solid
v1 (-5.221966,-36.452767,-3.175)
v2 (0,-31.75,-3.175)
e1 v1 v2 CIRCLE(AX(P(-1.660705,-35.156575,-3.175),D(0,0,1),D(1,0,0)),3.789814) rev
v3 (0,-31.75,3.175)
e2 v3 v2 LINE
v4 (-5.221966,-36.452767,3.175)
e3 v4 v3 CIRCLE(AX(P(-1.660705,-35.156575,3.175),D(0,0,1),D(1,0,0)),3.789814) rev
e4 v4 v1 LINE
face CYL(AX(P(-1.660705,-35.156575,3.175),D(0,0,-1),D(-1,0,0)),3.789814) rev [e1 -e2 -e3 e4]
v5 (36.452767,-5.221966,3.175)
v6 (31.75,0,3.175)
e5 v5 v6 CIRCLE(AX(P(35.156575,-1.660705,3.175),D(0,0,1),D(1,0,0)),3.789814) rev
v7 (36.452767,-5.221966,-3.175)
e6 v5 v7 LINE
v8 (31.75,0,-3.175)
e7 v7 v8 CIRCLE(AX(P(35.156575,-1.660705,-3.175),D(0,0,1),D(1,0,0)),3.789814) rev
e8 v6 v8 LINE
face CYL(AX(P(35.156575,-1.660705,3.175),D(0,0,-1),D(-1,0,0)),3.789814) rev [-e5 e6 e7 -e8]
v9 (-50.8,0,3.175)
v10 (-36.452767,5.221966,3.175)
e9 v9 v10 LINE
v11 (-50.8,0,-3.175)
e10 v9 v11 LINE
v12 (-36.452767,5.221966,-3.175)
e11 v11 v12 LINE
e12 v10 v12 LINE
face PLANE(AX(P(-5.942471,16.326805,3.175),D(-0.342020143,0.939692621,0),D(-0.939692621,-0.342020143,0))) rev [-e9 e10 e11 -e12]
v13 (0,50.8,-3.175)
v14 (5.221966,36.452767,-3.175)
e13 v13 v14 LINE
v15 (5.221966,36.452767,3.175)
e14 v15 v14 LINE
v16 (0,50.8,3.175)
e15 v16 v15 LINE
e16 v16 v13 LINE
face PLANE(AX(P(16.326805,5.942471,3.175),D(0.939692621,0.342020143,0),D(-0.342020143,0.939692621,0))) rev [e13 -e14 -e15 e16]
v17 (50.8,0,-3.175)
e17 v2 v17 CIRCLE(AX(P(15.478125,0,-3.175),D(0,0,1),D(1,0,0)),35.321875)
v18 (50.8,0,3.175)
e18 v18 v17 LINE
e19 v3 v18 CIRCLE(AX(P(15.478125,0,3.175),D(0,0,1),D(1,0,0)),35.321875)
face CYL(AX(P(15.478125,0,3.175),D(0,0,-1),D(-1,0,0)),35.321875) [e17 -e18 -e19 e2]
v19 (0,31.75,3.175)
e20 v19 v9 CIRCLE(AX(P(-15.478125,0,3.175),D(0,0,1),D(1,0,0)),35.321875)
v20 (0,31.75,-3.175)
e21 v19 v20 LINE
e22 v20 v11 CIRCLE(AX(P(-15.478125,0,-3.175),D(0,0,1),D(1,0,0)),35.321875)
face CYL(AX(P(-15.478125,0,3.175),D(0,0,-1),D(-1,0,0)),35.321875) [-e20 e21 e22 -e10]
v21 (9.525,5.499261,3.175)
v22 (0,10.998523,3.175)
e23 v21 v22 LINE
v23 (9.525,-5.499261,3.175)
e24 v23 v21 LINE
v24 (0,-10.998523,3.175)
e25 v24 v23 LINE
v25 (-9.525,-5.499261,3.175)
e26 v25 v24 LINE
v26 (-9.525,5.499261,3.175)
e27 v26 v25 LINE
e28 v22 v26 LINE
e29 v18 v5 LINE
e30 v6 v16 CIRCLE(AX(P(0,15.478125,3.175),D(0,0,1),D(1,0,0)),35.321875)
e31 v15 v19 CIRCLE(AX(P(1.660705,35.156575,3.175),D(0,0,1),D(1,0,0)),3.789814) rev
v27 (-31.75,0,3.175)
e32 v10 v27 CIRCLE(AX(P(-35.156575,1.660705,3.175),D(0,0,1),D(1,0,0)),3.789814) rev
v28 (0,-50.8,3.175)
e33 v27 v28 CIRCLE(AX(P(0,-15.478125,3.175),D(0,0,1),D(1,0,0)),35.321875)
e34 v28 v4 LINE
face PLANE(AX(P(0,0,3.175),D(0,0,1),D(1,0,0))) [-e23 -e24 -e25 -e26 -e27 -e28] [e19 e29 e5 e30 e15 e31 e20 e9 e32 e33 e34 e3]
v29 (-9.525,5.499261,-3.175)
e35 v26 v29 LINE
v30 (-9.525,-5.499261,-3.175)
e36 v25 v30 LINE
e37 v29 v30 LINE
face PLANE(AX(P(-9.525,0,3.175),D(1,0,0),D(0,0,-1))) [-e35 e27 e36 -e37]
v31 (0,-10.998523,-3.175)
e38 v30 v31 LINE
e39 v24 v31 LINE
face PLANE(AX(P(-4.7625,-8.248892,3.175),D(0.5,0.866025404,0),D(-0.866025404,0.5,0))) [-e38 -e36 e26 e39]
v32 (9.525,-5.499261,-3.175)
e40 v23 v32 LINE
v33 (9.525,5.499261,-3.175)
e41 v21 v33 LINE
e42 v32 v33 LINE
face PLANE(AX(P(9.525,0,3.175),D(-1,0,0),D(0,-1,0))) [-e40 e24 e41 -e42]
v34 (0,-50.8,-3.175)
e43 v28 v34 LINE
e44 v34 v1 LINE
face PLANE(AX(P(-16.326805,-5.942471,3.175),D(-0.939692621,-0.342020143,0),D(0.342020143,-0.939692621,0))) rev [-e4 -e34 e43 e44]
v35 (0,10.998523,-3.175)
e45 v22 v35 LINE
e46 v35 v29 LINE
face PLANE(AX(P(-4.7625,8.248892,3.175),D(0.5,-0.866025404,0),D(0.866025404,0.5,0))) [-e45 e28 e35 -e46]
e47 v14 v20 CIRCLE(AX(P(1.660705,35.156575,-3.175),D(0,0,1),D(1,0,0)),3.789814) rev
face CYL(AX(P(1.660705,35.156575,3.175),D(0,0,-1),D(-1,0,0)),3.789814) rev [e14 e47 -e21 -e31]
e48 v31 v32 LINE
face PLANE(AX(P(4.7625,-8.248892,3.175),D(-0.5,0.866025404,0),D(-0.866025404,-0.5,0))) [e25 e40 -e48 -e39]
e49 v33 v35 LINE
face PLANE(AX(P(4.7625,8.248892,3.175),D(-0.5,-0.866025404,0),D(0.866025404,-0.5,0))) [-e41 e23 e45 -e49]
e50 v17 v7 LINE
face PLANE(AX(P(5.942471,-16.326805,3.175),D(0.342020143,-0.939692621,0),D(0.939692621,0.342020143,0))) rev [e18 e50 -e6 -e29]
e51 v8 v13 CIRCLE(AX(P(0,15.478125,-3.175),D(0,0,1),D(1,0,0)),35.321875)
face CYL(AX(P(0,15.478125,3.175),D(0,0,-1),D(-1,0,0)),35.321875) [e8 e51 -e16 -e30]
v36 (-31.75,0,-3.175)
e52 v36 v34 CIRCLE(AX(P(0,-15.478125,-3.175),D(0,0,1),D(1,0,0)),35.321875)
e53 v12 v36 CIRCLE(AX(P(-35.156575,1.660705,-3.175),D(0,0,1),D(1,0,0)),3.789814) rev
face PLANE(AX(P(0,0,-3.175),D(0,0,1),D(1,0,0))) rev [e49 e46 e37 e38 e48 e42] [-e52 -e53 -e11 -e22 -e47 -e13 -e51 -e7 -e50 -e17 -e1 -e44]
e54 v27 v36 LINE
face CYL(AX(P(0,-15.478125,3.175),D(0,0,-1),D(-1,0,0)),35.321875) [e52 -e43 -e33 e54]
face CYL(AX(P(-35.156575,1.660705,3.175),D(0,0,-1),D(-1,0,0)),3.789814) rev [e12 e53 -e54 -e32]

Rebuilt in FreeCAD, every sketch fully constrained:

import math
import FreeCAD as App
import Part
import Sketcher

V = App.Vector
Q = App.Units.Quantity


def add_polygon(sketch, points):
    """Adds a closed chain of lines whose ends are joined by coincident constraints."""
    first, n = sketch.GeometryCount, len(points)
    for a, b in zip(points, points[1:] + points[:1]):
        sketch.addGeometry(Part.LineSegment(App.Vector(*a, 0), App.Vector(*b, 0)), False)
    for i in range(n):
        sketch.addConstraint(Sketcher.Constraint("Coincident", first + i, 2, first + (i + 1) % n, 1))

doc = App.newDocument("Part")
params = doc.addObject("Spreadsheet::Sheet", "Params")
for row, (alias, value) in enumerate([
    ("sketch1_radius", "1.390625 in"),
    ("pad1_length", "0.25 in"),
], start=1):
    params.set(f"A{row}", alias)
    params.set(f"B{row}", "=" + value)
    params.setAlias(f"B{row}", alias)

body = doc.addObject("PartDesign::Body", "Body")

sketch1 = body.newObject("Sketcher::SketchObject", "Sketch")
sketch1.AttachmentSupport = (doc.getObject("XY_Plane"), [""])
sketch1.MapMode = "FlatFace"
sketch1.addGeometry(Part.ArcOfCircle(Part.Circle(V(-1.7, -35.2, 0), V(0, 0, 1), 3.8), math.radians(64), math.radians(200)), False)
sketch1.addGeometry(Part.ArcOfCircle(Part.Circle(V(15.5, 0, 0), V(0, 0, 1), 35.3), math.radians(-116), math.radians(0)), False)
sketch1.addGeometry(Part.LineSegment(V(50.8, 0, 0), V(36.5, -5.2, 0)), False)
sketch1.addGeometry(Part.ArcOfCircle(Part.Circle(V(35.2, -1.7, 0), V(0, 0, 1), 3.8), math.radians(154), math.radians(290)), False)
sketch1.addGeometry(Part.ArcOfCircle(Part.Circle(V(0, 15.5, 0), V(0, 0, 1), 35.3), math.radians(-26), math.radians(90)), False)
sketch1.addGeometry(Part.LineSegment(V(0, 50.8, 0), V(5.2, 36.5, 0)), False)
sketch1.addGeometry(Part.ArcOfCircle(Part.Circle(V(1.7, 35.2, 0), V(0, 0, 1), 3.8), math.radians(-116), math.radians(20)), False)
sketch1.addGeometry(Part.ArcOfCircle(Part.Circle(V(-15.5, 0, 0), V(0, 0, 1), 35.3), math.radians(64), math.radians(180)), False)
sketch1.addGeometry(Part.LineSegment(V(-50.8, 0, 0), V(-36.5, 5.2, 0)), False)
sketch1.addGeometry(Part.ArcOfCircle(Part.Circle(V(-35.2, 1.7, 0), V(0, 0, 1), 3.8), math.radians(-26), math.radians(110)), False)
sketch1.addGeometry(Part.ArcOfCircle(Part.Circle(V(0, -15.5, 0), V(0, 0, 1), 35.3), math.radians(154), math.radians(270)), False)
sketch1.addGeometry(Part.LineSegment(V(0, -50.8, 0), V(-5.2, -36.5, 0)), False)
add_polygon(sketch1, [(9.5, 5.5), (9.5, -5.5), (0, -11), (-9.5, -5.5), (-9.5, 5.5), (0, 11)])
sketch1.addConstraint(Sketcher.Constraint("Tangent", 0, 1, 1, 1))
sketch1.addConstraint(Sketcher.Constraint("Coincident", 1, 2, 2, 1))
sketch1.addConstraint(Sketcher.Constraint("Tangent", 2, 2, 3, 2))
sketch1.addConstraint(Sketcher.Constraint("Tangent", 3, 1, 4, 1))
sketch1.addConstraint(Sketcher.Constraint("Coincident", 4, 2, 5, 1))
sketch1.addConstraint(Sketcher.Constraint("Tangent", 5, 2, 6, 2))
sketch1.addConstraint(Sketcher.Constraint("Tangent", 6, 1, 7, 1))
sketch1.addConstraint(Sketcher.Constraint("Coincident", 7, 2, 8, 1))
sketch1.addConstraint(Sketcher.Constraint("Tangent", 8, 2, 9, 2))
sketch1.addConstraint(Sketcher.Constraint("Tangent", 9, 1, 10, 1))
sketch1.addConstraint(Sketcher.Constraint("Coincident", 10, 2, 11, 1))
sketch1.addConstraint(Sketcher.Constraint("Tangent", 11, 2, 0, 2))
sketch1.addConstraint(Sketcher.Constraint("Vertical", 12))
sketch1.addConstraint(Sketcher.Constraint("Vertical", 15))
sketch1.addConstraint(Sketcher.Constraint("Equal", 0, 3))
sketch1.addConstraint(Sketcher.Constraint("Equal", 1, 4))
sketch1.addConstraint(Sketcher.Constraint("Equal", 3, 6))
sketch1.addConstraint(Sketcher.Constraint("Equal", 4, 7))
sketch1.addConstraint(Sketcher.Constraint("Equal", 6, 9))
sketch1.addConstraint(Sketcher.Constraint("Equal", 7, 10))
sketch1.addConstraint(Sketcher.Constraint("Symmetric", 0, 3, 6, 3, -1, 1))
sketch1.addConstraint(Sketcher.Constraint("Symmetric", 3, 3, 9, 3, -1, 1))
sketch1.addConstraint(Sketcher.Constraint("Symmetric", 1, 2, 7, 2, -1, 1))
sketch1.addConstraint(Sketcher.Constraint("Symmetric", 4, 2, 10, 2, -1, 1))
sketch1.addConstraint(Sketcher.Constraint("Symmetric", 12, 2, 15, 2, -1, 1))
sketch1.addConstraint(Sketcher.Constraint("Symmetric", 13, 2, 16, 2, -1, 1))
sketch1.addConstraint(Sketcher.Constraint("PointOnObject", 1, 3, -1))
sketch1.addConstraint(Sketcher.Constraint("PointOnObject", 4, 3, -2))
sketch1.addConstraint(Sketcher.Constraint("PointOnObject", 0, 1, -2))
sketch1.addConstraint(Sketcher.Constraint("PointOnObject", 1, 2, -1))
sketch1.addConstraint(Sketcher.Constraint("PointOnObject", 3, 1, -1))
sketch1.addConstraint(Sketcher.Constraint("PointOnObject", 4, 2, -2))
sketch1.addConstraint(Sketcher.Constraint("PointOnObject", 13, 2, -2))
sketch1.addConstraint(Sketcher.Constraint("Perpendicular", 2, 5))
sketch1.addConstraint(Sketcher.Constraint("Parallel", 14, 17))
sketch1.addConstraint(Sketcher.Constraint("Horizontal", 12, 2, 14, 2))
sketch1.addConstraint(Sketcher.Constraint("DistanceX", -1, 1, 1, 2, Q("2 in")))
sketch1.addConstraint(Sketcher.Constraint("Angle", 2, Q("-160 deg")))
sketch1.addConstraint(Sketcher.Constraint("Angle", 13, Q("-150 deg")))
sketch1.addConstraint(Sketcher.Constraint("Radius", 1, Q("1.390625 in")))
sketch1.addConstraint(Sketcher.Constraint("DistanceX", 14, 2, 12, 2, Q("0.75 in")))
sketch1.addConstraint(Sketcher.Constraint("DistanceY", 12, 2, 12, 1, Q("10.998523 mm")))
sketch1.setExpression("Constraints[45]", "Params.sketch1_radius")
pad1 = body.newObject("PartDesign::Pad", "Pad")
pad1.Profile = sketch1
pad1.setExpression("Length", "Params.pad1_length")
pad1.Midplane = True

doc.recompute()
